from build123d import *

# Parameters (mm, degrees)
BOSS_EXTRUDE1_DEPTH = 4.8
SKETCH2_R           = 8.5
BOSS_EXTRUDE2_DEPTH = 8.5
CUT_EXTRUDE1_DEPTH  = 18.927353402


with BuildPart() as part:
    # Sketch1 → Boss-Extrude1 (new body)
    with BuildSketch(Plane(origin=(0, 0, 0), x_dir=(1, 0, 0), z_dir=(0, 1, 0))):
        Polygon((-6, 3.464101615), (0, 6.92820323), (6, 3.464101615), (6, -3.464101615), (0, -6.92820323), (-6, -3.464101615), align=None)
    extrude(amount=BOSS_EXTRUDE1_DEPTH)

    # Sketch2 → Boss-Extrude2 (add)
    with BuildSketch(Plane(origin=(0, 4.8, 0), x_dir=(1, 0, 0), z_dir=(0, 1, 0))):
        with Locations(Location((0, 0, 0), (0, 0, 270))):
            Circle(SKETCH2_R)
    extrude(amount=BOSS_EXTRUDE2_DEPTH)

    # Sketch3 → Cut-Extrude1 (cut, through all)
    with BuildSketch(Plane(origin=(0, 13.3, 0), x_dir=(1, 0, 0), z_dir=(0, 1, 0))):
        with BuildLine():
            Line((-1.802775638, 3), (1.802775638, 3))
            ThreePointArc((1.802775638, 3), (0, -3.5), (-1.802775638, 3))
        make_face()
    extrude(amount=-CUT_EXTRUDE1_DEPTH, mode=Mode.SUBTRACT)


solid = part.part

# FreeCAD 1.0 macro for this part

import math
import FreeCAD as App
import Part
import Sketcher
Q = App.Units.Quantity


def add_polygon(sketch, points):
    """Adds a closed chain of lines whose ends are joined by coincident constraints."""
    first, n = sketch.GeometryCount, len(points)
    for a, b in zip(points, points[1:] + points[:1]):
        sketch.addGeometry(Part.LineSegment(App.Vector(*a, 0), App.Vector(*b, 0)), False)
    for i in range(n):
        sketch.addConstraint(Sketcher.Constraint("Coincident", first + i, 2, first + (i + 1) % n, 1))

doc = App.newDocument("Part")
body = doc.addObject("PartDesign::Body", "Body")

sketch1 = body.newObject("Sketcher::SketchObject", "Sketch")
sketch1.AttachmentSupport = (doc.getObject("XZ_Plane"), [""])
sketch1.MapMode = "FlatFace"
add_polygon(sketch1, [(0, -7), (-6, -3), (-6, 3), (0, 7), (6, 3), (6, -3)])
sketch1.addConstraint(Sketcher.Constraint("Vertical", 1))
sketch1.addConstraint(Sketcher.Constraint("Vertical", 4))
sketch1.addConstraint(Sketcher.Constraint("Symmetric", 0, 2, 3, 2, -1, 1))
sketch1.addConstraint(Sketcher.Constraint("Symmetric", 2, 2, 5, 2, -1, 1))
sketch1.addConstraint(Sketcher.Constraint("PointOnObject", 2, 2, -2))
sketch1.addConstraint(Sketcher.Constraint("Parallel", 2, 5))
sketch1.addConstraint(Sketcher.Constraint("Horizontal", 1, 2, 3, 2))
sketch1.addConstraint(Sketcher.Constraint("Angle", 0, Q("150 deg")))
sketch1.addConstraint(Sketcher.Constraint("DistanceX", 0, 2, -1, 1, Q("6 mm")))
sketch1.addConstraint(Sketcher.Constraint("DistanceY", 0, 2, -1, 1, Q("3.464102 mm")))
pad1 = body.newObject("PartDesign::Pad", "Pad")
pad1.Profile = sketch1
pad1.Length = 4.8
pad1.Reversed = True

sketch2 = body.newObject("Sketcher::SketchObject", "Sketch001")
sketch2.AttachmentSupport = (doc.getObject("XZ_Plane"), [""])
sketch2.MapMode = "FlatFace"
sketch2.AttachmentOffset = App.Placement(App.Vector(0, 0, -4.8), App.Rotation())
sketch2.addGeometry(Part.Circle(App.Vector(0, 0, 0), App.Vector(0, 0, 1), 8), False)
sketch2.addConstraint(Sketcher.Constraint("Coincident", 0, 3, -1, 1))
sketch2.addConstraint(Sketcher.Constraint("Diameter", 0, Q("17 mm")))
pad2 = body.newObject("PartDesign::Pad", "Pad001")
pad2.Profile = sketch2
pad2.Length = 8.5
pad2.Reversed = True

sketch3 = body.newObject("Sketcher::SketchObject", "Sketch002")
sketch3.AttachmentSupport = (doc.getObject("XZ_Plane"), [""])
sketch3.MapMode = "FlatFace"
sketch3.AttachmentOffset = App.Placement(App.Vector(0, 0, -13.3), App.Rotation())
sketch3.addGeometry(Part.LineSegment(App.Vector(1.8, -3, 0), App.Vector(-1.8, -3, 0)), False)
sketch3.addGeometry(Part.ArcOfCircle(Part.Circle(App.Vector(0, 0, 0), App.Vector(0, 0, 1), 3.5), math.radians(-59), math.radians(239)), False)
sketch3.addConstraint(Sketcher.Constraint("Coincident", 0, 1, 1, 1))
sketch3.addConstraint(Sketcher.Constraint("Coincident", 1, 2, 0, 2))
sketch3.addConstraint(Sketcher.Constraint("Horizontal", 0))
sketch3.addConstraint(Sketcher.Constraint("Coincident", 1, 3, -1, 1))
sketch3.addConstraint(Sketcher.Constraint("Radius", 1, Q("3.5 mm")))
sketch3.addConstraint(Sketcher.Constraint("DistanceY", 0, 1, -1, 1, Q("3 mm")))
pocket1 = body.newObject("PartDesign::Pocket", "Pocket")
pocket1.Profile = sketch3
pocket1.Type = "ThroughAll"
pocket1.Reversed = True

doc.recompute()
